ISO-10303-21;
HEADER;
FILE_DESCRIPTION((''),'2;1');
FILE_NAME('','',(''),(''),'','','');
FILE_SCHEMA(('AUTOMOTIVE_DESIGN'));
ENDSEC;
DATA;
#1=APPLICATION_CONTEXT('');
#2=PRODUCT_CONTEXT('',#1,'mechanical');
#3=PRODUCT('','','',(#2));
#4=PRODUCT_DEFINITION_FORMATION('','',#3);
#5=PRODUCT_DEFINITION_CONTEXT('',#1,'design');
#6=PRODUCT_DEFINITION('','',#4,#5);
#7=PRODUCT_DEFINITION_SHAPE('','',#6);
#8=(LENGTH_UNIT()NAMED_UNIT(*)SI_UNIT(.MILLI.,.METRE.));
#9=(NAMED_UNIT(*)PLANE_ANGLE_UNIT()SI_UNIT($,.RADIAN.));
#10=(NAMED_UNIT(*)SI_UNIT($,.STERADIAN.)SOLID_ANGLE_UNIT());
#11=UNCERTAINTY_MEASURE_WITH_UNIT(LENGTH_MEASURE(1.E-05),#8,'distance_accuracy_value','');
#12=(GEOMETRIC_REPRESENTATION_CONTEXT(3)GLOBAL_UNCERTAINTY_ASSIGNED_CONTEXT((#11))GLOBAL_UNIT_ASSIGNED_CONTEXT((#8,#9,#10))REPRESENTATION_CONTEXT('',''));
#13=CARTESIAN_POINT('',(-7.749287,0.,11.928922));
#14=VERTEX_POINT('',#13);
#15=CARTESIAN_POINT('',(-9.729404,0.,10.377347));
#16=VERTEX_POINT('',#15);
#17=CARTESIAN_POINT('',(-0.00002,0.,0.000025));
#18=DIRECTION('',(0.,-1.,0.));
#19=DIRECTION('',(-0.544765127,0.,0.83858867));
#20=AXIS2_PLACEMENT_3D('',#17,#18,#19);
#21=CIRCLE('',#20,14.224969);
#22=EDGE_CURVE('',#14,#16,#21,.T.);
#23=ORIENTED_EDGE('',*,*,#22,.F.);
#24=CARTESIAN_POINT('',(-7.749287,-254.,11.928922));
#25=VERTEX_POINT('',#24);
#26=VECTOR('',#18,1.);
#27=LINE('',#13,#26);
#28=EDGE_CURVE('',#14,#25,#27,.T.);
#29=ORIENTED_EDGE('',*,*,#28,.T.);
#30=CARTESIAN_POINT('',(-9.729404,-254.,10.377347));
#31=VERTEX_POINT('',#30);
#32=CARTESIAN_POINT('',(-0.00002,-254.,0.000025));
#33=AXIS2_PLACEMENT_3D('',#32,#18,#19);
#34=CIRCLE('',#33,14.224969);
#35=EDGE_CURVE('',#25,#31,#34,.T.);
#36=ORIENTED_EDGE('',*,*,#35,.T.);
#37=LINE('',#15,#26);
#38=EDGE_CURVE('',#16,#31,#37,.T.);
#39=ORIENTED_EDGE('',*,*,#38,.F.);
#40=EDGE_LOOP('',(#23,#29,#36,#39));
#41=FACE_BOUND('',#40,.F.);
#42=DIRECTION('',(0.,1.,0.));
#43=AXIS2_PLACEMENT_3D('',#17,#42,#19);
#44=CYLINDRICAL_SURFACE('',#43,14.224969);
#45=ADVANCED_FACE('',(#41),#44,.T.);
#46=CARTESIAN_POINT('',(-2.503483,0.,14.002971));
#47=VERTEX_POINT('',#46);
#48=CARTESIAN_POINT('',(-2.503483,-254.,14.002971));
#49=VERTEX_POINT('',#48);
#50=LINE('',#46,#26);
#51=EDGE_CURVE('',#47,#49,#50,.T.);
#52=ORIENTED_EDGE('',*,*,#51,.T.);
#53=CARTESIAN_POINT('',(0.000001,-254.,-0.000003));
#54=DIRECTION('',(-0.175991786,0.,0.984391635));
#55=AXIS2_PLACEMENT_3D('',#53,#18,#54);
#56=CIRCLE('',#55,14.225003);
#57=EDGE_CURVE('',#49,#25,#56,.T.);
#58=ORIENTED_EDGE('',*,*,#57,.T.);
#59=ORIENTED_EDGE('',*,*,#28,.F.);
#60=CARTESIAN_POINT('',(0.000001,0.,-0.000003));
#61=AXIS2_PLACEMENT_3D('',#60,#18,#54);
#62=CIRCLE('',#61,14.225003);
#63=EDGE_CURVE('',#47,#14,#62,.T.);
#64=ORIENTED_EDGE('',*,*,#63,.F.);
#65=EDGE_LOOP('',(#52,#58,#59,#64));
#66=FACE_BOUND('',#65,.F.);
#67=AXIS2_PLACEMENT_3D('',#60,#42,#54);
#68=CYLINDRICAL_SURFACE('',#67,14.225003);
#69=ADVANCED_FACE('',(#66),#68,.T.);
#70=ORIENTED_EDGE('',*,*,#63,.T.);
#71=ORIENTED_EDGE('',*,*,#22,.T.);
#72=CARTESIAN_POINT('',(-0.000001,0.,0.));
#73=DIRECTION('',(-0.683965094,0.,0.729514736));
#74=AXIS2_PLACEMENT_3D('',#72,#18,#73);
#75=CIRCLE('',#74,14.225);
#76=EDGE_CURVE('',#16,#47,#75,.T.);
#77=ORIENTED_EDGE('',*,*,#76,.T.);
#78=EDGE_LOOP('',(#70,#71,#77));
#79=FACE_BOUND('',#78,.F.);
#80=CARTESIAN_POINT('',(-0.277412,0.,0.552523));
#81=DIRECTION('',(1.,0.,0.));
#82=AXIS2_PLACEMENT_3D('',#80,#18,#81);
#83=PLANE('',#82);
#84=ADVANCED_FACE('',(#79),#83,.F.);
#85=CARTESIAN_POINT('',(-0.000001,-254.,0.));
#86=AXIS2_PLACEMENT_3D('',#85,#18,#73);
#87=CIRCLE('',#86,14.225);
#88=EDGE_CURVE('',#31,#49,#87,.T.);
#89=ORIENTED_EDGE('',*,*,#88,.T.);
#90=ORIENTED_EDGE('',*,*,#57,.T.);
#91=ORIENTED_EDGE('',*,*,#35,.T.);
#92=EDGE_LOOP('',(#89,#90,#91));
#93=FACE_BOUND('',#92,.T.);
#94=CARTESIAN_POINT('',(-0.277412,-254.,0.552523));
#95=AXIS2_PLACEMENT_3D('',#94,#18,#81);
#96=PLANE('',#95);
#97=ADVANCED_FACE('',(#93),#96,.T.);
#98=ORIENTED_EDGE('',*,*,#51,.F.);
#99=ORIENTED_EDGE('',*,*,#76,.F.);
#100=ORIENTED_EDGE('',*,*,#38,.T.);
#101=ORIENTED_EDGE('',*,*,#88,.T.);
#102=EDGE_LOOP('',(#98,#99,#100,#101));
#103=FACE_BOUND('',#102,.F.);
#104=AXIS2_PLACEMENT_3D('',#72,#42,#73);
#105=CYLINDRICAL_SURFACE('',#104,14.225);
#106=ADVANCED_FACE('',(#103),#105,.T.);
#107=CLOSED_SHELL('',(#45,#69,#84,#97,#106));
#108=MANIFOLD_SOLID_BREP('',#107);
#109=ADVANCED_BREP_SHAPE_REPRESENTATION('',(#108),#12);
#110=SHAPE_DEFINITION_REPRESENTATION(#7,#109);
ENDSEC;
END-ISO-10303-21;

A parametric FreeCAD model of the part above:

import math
import FreeCAD as App
import Part
import Sketcher
Q = App.Units.Quantity

doc = App.newDocument("Part")
body = doc.addObject("PartDesign::Body", "Body")

# Sketch on XZ plane
sketch1 = body.newObject("Sketcher::SketchObject", "Sketch")
sketch1.AttachmentSupport = (doc.getObject("XZ_Plane"), [""])
sketch1.MapMode = "FlatFace"
sketch1.addGeometry([
    Part.ArcOfCircle(Part.Circle(App.Vector(-0.00002, 0.000025, 0), App.Vector(0, 0, 1), 14.224969), math.radians(123.008615), math.radians(133.154282)),
    Part.ArcOfCircle(Part.Circle(App.Vector(-0.000001, 0, 0), App.Vector(0, 0, 1), 14.225), math.radians(133.154272), math.radians(460.136376)),
    Part.ArcOfCircle(Part.Circle(App.Vector(0.000001, -0.000003, 0), App.Vector(0, 0, 1), 14.225003), math.radians(100.136379), math.radians(123.008625)),
], False)
sketch1.addConstraint([
    Sketcher.Constraint("Coincident", 0, 2, 1, 1),
    Sketcher.Constraint("Coincident", 1, 2, 2, 1),
    Sketcher.Constraint("Coincident", 2, 2, 0, 1),
    Sketcher.Constraint("Coincident", 1, 3, -1, 1),
    Sketcher.Constraint("Coincident", 2, 3, -1, 1),
    Sketcher.Constraint("Radius", 1, 14.225),
    Sketcher.Constraint("Radius", 0, 14.224969),
    Sketcher.Constraint("DistanceY", -1, 1, 1, 2, 14.002971),
    Sketcher.Constraint("DistanceY", -1, 1, 2, 2, 11.928922),
    Sketcher.Constraint("DistanceY", 2, 3, 0, 2, 10.37735),
])
pad1 = body.newObject("PartDesign::Pad", "Pad")
pad1.Profile = sketch1
pad1.Length = Q("10 in")

doc.recompute()
